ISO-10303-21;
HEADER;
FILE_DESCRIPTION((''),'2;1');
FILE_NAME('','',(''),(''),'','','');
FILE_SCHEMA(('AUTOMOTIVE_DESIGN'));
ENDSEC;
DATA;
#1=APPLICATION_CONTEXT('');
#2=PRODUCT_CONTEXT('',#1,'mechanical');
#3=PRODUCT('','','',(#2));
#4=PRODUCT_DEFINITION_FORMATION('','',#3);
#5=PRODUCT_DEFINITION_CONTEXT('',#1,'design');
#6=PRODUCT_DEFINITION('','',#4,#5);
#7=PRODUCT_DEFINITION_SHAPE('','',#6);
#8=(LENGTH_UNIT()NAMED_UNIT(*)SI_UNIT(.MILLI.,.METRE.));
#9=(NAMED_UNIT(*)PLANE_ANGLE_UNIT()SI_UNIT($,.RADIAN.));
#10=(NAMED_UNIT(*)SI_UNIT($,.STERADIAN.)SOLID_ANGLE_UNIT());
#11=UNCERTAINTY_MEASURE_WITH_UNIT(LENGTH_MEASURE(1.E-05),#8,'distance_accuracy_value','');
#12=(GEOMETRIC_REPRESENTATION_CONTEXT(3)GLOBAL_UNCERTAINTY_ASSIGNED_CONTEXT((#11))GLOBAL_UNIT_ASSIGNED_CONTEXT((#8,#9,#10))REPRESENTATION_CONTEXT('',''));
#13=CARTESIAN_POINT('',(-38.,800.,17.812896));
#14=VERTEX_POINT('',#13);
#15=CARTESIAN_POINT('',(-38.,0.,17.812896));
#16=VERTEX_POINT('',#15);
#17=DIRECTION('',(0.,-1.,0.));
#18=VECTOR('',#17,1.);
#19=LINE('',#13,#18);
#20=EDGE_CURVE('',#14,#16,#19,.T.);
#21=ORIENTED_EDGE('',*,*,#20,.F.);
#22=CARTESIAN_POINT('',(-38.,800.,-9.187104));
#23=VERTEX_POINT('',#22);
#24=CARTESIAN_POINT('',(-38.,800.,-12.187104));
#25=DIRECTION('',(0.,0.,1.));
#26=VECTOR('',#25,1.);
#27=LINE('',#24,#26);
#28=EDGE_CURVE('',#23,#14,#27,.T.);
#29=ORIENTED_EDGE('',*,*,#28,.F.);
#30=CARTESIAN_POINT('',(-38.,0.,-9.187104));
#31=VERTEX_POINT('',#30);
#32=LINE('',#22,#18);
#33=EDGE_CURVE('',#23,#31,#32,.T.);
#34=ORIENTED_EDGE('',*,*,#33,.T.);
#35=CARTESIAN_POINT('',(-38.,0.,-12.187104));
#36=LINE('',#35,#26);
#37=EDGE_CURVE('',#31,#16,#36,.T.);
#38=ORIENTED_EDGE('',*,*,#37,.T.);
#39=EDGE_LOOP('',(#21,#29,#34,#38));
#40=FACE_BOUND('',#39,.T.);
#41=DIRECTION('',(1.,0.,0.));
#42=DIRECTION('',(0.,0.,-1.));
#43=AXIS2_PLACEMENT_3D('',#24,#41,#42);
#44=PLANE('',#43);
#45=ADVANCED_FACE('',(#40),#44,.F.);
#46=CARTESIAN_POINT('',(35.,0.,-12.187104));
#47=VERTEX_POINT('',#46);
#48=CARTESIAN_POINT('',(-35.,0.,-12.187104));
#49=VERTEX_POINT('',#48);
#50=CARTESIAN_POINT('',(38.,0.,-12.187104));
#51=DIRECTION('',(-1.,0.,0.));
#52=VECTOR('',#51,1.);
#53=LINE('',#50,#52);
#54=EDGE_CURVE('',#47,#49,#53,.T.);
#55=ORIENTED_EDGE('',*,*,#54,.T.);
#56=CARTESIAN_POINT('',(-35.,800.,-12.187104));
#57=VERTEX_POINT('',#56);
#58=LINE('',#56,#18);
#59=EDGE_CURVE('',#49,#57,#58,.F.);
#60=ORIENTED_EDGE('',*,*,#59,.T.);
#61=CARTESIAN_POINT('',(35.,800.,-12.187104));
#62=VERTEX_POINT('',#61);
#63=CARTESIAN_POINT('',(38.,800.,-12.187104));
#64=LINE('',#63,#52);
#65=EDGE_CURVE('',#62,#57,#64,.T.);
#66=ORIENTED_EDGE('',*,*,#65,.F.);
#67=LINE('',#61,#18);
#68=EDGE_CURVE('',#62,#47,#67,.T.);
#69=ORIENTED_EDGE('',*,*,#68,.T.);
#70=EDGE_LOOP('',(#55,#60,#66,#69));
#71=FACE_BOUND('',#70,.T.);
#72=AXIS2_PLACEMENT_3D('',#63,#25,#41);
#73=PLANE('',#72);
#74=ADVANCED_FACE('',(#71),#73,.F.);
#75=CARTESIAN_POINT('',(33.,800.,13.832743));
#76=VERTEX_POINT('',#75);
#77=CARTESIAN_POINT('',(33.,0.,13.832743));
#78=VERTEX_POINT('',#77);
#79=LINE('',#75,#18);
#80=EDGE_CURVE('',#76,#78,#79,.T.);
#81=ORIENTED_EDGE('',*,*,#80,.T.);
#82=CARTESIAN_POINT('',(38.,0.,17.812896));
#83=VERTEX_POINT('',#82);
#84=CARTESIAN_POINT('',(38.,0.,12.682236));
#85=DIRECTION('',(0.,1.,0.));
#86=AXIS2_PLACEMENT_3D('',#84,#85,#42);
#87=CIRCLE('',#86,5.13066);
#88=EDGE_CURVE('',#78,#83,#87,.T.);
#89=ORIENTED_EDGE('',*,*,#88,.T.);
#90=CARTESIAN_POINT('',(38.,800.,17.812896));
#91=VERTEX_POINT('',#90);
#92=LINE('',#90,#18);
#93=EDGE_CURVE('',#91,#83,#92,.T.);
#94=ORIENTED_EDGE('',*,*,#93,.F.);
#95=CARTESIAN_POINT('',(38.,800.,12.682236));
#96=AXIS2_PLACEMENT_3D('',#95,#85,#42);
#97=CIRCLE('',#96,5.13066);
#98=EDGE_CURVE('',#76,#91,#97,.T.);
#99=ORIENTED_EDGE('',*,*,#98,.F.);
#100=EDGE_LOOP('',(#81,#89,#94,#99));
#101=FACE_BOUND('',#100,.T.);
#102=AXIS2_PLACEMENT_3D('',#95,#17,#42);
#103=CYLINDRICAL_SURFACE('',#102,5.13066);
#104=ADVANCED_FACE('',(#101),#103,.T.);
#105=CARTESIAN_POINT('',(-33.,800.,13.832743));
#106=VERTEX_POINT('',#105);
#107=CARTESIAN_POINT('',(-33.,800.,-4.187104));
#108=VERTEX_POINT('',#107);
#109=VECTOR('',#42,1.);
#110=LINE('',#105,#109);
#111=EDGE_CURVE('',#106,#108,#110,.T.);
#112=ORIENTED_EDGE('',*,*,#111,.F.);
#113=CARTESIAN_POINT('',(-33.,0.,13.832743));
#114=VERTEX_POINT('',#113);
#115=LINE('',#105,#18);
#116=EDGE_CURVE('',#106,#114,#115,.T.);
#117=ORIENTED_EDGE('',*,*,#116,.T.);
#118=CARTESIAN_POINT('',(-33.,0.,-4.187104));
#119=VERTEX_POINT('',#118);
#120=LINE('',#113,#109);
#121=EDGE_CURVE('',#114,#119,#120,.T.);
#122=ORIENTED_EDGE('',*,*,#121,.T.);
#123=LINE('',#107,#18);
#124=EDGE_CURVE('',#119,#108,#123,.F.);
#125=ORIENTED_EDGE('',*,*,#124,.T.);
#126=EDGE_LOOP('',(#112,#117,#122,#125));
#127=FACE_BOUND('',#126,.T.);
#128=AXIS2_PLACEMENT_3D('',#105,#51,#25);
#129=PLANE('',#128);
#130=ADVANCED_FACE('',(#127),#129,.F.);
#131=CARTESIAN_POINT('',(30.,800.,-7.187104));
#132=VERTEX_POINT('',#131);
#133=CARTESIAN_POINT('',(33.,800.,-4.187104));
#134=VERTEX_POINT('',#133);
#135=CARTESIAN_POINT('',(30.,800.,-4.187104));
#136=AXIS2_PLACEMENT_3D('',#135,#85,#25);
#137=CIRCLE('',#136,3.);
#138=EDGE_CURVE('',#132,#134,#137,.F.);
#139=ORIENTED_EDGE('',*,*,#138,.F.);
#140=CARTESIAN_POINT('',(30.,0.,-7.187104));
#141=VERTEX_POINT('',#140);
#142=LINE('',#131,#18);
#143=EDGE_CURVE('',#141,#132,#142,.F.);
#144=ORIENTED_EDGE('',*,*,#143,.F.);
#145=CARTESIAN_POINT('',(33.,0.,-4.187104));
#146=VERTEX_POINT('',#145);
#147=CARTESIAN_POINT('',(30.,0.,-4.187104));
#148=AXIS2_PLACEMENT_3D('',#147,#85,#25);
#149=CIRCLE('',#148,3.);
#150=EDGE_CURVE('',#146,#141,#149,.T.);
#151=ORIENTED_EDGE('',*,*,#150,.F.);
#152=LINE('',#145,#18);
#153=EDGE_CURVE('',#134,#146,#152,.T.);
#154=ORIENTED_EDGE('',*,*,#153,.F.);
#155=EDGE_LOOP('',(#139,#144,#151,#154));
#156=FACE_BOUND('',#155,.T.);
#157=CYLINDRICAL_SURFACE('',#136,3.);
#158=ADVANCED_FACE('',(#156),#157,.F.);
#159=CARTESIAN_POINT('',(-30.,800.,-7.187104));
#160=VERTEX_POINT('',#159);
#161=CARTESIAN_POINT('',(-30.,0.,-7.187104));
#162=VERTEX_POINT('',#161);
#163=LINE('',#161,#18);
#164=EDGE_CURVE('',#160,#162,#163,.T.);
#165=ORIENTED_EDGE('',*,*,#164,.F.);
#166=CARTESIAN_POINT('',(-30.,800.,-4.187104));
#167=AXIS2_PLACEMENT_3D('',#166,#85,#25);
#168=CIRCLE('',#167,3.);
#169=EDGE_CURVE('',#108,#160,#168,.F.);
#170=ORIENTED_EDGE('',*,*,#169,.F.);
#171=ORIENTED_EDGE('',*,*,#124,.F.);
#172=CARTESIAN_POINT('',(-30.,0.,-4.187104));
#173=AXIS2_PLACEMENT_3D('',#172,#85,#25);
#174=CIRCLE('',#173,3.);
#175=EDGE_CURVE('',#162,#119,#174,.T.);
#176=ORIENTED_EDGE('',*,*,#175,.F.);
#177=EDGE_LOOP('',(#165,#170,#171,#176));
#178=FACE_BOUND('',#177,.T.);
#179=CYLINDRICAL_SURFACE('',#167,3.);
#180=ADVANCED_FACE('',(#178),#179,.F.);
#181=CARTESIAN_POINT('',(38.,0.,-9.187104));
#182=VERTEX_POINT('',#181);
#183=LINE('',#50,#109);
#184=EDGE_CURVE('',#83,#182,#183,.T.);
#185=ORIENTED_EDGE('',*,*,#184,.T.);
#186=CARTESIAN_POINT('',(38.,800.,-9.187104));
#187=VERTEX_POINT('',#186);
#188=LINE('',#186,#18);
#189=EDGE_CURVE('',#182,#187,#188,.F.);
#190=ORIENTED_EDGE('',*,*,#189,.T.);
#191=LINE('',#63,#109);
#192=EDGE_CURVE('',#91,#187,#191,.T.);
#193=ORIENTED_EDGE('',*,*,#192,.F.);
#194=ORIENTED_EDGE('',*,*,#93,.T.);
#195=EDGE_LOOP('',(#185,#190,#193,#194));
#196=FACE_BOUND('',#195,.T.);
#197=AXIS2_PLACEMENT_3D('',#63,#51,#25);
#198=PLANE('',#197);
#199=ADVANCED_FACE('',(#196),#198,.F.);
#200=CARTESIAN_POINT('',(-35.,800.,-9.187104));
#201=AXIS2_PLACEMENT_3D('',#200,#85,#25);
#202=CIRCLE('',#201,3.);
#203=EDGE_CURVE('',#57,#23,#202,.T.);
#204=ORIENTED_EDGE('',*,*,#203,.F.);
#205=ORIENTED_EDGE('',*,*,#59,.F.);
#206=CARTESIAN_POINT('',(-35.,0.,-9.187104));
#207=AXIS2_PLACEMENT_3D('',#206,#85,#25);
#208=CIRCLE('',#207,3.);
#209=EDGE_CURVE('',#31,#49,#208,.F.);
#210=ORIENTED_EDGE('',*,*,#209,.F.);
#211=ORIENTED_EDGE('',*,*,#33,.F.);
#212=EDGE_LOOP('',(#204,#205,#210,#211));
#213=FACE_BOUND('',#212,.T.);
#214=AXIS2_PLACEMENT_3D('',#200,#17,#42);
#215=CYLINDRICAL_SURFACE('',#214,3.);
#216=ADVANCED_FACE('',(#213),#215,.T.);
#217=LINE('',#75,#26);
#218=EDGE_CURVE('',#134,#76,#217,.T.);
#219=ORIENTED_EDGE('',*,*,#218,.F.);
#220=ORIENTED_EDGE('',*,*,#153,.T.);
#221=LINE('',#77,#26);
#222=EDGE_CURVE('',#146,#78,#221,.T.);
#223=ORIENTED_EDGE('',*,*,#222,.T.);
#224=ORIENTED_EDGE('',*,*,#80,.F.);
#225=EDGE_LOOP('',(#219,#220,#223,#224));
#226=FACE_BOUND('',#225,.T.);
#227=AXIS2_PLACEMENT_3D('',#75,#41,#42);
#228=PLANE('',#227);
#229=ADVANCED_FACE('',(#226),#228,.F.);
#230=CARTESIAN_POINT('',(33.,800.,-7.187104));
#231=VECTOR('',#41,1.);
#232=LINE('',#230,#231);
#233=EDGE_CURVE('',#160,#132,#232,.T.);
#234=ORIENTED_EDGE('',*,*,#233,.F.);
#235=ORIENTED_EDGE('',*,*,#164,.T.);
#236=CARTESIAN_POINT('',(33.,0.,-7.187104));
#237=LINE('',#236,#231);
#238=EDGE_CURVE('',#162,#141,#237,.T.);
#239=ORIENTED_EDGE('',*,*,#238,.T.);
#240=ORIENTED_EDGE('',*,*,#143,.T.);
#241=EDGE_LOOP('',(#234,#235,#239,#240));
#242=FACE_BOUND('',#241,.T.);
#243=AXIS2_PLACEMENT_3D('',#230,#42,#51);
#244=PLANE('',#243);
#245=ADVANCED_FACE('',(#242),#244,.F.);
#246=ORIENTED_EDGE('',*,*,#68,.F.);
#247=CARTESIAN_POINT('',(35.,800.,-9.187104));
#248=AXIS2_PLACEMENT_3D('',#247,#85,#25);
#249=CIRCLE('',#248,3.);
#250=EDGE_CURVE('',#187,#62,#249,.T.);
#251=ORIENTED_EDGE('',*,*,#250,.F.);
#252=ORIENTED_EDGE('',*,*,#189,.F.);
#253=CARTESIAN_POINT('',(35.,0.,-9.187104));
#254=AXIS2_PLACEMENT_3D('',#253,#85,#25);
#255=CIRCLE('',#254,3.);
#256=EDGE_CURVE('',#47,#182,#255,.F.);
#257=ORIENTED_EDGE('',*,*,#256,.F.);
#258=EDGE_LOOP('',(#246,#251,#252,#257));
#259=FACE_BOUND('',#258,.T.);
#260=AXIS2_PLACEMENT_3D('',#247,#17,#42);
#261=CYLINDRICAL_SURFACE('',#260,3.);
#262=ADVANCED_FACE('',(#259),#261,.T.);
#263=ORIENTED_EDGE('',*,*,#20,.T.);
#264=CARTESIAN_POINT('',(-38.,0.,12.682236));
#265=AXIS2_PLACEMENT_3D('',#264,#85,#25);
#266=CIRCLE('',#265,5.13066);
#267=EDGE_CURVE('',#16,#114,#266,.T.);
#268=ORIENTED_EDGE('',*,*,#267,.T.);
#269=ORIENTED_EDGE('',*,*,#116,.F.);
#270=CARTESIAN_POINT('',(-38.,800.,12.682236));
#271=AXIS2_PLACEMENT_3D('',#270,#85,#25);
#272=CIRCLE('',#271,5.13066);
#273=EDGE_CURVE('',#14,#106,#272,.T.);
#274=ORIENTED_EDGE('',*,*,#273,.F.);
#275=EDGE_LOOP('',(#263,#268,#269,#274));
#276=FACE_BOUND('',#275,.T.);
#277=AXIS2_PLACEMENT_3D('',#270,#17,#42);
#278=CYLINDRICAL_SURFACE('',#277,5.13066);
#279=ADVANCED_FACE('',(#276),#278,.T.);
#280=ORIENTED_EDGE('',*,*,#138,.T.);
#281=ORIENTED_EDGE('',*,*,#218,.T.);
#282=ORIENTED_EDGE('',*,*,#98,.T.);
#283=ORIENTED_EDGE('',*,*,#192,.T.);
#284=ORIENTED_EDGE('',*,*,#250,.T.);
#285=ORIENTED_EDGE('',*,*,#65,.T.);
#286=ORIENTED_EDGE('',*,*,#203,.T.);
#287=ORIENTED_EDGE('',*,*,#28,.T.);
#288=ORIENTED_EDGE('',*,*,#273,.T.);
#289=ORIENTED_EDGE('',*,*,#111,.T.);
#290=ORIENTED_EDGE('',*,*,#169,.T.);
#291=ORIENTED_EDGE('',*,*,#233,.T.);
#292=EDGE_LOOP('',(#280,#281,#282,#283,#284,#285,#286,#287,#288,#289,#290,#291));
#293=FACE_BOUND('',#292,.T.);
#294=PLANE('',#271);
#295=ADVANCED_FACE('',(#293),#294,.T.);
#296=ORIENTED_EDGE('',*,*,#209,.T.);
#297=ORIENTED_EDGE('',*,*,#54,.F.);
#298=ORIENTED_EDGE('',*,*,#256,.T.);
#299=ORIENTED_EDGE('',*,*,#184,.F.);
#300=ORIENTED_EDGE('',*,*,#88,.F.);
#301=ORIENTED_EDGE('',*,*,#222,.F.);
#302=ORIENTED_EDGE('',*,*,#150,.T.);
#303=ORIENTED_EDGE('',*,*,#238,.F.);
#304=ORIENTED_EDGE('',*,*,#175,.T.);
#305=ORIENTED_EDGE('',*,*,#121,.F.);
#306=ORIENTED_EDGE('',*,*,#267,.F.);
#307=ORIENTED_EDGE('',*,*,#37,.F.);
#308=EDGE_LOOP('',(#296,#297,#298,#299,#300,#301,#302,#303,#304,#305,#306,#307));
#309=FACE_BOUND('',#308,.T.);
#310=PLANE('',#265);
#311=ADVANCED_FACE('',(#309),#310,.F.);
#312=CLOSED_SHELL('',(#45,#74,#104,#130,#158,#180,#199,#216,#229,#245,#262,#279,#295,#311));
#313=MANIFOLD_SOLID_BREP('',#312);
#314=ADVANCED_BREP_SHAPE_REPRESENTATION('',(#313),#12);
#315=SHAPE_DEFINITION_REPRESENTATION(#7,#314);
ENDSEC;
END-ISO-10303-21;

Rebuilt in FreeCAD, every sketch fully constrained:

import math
import FreeCAD as App
import Part
import Sketcher

V = App.Vector


def edges_at(feature, points):
    """Names of the edges that pass closest to the given points."""
    edges = feature.Shape.Edges
    near = lambda p: min(range(len(edges)), key=lambda i: edges[i].distToShape(Part.Vertex(*p))[0])
    return sorted({f"Edge{near(p) + 1}" for p in points})

doc = App.newDocument("Part")
params = doc.addObject("Spreadsheet::Sheet", "Params")
for row, (alias, value) in enumerate([
    ("sketch1_width", "76 mm"),
    ("sketch1_width2", "66 mm"),
    ("sketch1_height", "30 mm"),
    ("pad1_length", "800 mm"),
    ("fillet_radius", "3 mm"),
], start=1):
    params.set(f"A{row}", alias)
    params.set(f"B{row}", "=" + value)
    params.setAlias(f"B{row}", alias)

body = doc.addObject("PartDesign::Body", "Body")

sketch1 = body.newObject("Sketcher::SketchObject", "Sketch")
sketch1.AttachmentSupport = (doc.getObject("XZ_Plane"), [""])
sketch1.MapMode = "FlatFace"
sketch1.addGeometry(Part.LineSegment(V(38, 18, 0), V(38, -12, 0)), False)
sketch1.addGeometry(Part.LineSegment(V(38, -12, 0), V(-38, -12, 0)), False)
sketch1.addGeometry(Part.LineSegment(V(-38, -12, 0), V(-38, 18, 0)), False)
sketch1.addGeometry(Part.ArcOfCircle(Part.Circle(V(-38, 13, 0), V(0, 0, 1), 5), math.radians(13), math.radians(90)), False)
sketch1.addGeometry(Part.LineSegment(V(-33, 14, 0), V(-33, -7, 0)), False)
sketch1.addGeometry(Part.LineSegment(V(-33, -7, 0), V(33, -7, 0)), False)
sketch1.addGeometry(Part.LineSegment(V(33, -7, 0), V(33, 14, 0)), False)
sketch1.addGeometry(Part.ArcOfCircle(Part.Circle(V(38, 13, 0), V(0, 0, 1), 5), math.radians(90), math.radians(167)), False)
sketch1.addConstraint(Sketcher.Constraint("Coincident", 0, 2, 1, 1))
sketch1.addConstraint(Sketcher.Constraint("Coincident", 1, 2, 2, 1))
sketch1.addConstraint(Sketcher.Constraint("Coincident", 2, 2, 3, 2))
sketch1.addConstraint(Sketcher.Constraint("Coincident", 3, 1, 4, 1))
sketch1.addConstraint(Sketcher.Constraint("Coincident", 4, 2, 5, 1))
sketch1.addConstraint(Sketcher.Constraint("Coincident", 5, 2, 6, 1))
sketch1.addConstraint(Sketcher.Constraint("Coincident", 6, 2, 7, 2))
sketch1.addConstraint(Sketcher.Constraint("Coincident", 7, 1, 0, 1))
sketch1.addConstraint(Sketcher.Constraint("Vertical", 0))
sketch1.addConstraint(Sketcher.Constraint("Horizontal", 1))
sketch1.addConstraint(Sketcher.Constraint("Vertical", 2))
sketch1.addConstraint(Sketcher.Constraint("Vertical", 4))
sketch1.addConstraint(Sketcher.Constraint("Horizontal", 5))
sketch1.addConstraint(Sketcher.Constraint("Vertical", 6))
sketch1.addConstraint(Sketcher.Constraint("Equal", 3, 7))
sketch1.addConstraint(Sketcher.Constraint("Symmetric", 3, 3, 7, 3, -2))
sketch1.addConstraint(Sketcher.Constraint("Horizontal", 3, 1, 6, 2))
sketch1.addConstraint(Sketcher.Constraint("Vertical", 7, 3, 0, 2))
sketch1.addConstraint(Sketcher.Constraint("Vertical", 3, 3, 1, 2))
sketch1.addConstraint(Sketcher.Constraint("DistanceX", 1, 2, 1, 1, 76.0))
sketch1.addConstraint(Sketcher.Constraint("DistanceX", 5, 1, 5, 2, 66.0))
sketch1.addConstraint(Sketcher.Constraint("DistanceY", 0, 2, 0, 1, 30.0))
sketch1.addConstraint(Sketcher.Constraint("DistanceY", 1, 2, 4, 2, 5.0))
sketch1.addConstraint(Sketcher.Constraint("Radius", 3, 5.13066))
sketch1.addConstraint(Sketcher.Constraint("DistanceY", -1, 1, 3, 3, 12.682236))
sketch1.setExpression("Constraints[19]", "Params.sketch1_width")
sketch1.setExpression("Constraints[20]", "Params.sketch1_width2")
sketch1.setExpression("Constraints[21]", "Params.sketch1_height")
pad1 = body.newObject("PartDesign::Pad", "Pad")
pad1.Profile = sketch1
pad1.setExpression("Length", "Params.pad1_length")
pad1.Reversed = True
doc.recompute()

fillet = body.newObject("PartDesign::Fillet", "Fillet")
fillet.Base = (pad1, edges_at(pad1, [
    (38, 400, -12.187),
    (33, 400, -7.187),
    (-33, 400, -7.187),
    (-38, 400, -12.187),
]))
fillet.setExpression("Radius", "Params.fillet_radius")

doc.recompute()
